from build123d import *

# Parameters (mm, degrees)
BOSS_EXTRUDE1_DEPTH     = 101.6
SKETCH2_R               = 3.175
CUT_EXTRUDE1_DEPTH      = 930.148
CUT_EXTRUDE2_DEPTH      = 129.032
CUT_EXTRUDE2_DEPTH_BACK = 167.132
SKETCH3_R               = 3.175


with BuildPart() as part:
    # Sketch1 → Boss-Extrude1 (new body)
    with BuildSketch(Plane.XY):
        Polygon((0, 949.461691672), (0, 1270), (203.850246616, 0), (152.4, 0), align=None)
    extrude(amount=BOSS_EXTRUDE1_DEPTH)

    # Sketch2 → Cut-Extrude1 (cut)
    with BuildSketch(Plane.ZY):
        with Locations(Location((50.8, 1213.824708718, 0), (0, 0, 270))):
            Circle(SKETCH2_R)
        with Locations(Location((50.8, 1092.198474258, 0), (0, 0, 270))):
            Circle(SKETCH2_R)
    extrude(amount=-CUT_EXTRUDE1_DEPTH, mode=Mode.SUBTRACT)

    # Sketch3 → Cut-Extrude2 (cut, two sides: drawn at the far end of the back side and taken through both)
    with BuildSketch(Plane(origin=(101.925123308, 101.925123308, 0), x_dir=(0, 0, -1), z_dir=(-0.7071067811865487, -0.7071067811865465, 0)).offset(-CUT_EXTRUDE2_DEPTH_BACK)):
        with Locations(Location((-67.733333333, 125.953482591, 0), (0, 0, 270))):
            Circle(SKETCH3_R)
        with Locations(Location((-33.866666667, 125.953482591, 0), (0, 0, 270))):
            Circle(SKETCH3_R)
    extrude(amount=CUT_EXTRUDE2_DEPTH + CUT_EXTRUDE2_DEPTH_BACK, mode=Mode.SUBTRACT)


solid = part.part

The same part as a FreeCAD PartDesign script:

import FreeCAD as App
import Part
import Sketcher
from FreeCAD import Vector
Q = App.Units.Quantity


def add_polygon(sketch, points):
    """Adds a closed chain of lines whose ends are joined by coincident constraints."""
    first, n = sketch.GeometryCount, len(points)
    for a, b in zip(points, points[1:] + points[:1]):
        sketch.addGeometry(Part.LineSegment(App.Vector(*a, 0), App.Vector(*b, 0)), False)
    for i in range(n):
        sketch.addConstraint(Sketcher.Constraint("Coincident", first + i, 2, first + (i + 1) % n, 1))

doc = App.newDocument("Part")
body = doc.addObject("PartDesign::Body", "Body")

# Sketch on XY plane
sketch1 = body.newObject("Sketcher::SketchObject", "Sketch")
sketch1.AttachmentSupport = (doc.getObject("XY_Plane"), [""])
sketch1.MapMode = "FlatFace"
add_polygon(sketch1, [(0, 1270), (0, 949), (152, 0), (204, 0)])  # lines 0-3
sketch1.addConstraint([
    Sketcher.Constraint("Vertical", 0),
    Sketcher.Constraint("Horizontal", 2),
    Sketcher.Constraint("PointOnObject", 0, 2, -2),
    Sketcher.Constraint("PointOnObject", 1, 2, -1),
    Sketcher.Constraint("Parallel", 1, 3),
    Sketcher.Constraint("DistanceX", -1, 1, 1, 2, Q("6 in")),
    Sketcher.Constraint("DistanceY", -1, 1, 3, 2, Q("50 in")),
    Sketcher.Constraint("DistanceY", 0, 2, 0, 1, Q("320.538308 mm")),
])
pad1 = body.newObject("PartDesign::Pad", "Pad")
pad1.Profile = sketch1
pad1.Length = Q("4 in")

# Sketch on YZ plane
sketch2 = body.newObject("Sketcher::SketchObject", "Sketch001")
sketch2.AttachmentSupport = (doc.getObject("YZ_Plane"), [""])
sketch2.MapMode = "FlatFace"
sketch2.addGeometry([
    Part.Circle(Vector(1213.8, 50.8, 0), Vector(0, 0, 1), 3.2),
    Part.Circle(Vector(1092.2, 50.8, 0), Vector(0, 0, 1), 3.2),
], False)
sketch2.addConstraint([
    Sketcher.Constraint("Equal", 0, 1),
    Sketcher.Constraint("Horizontal", 0, 3, 1, 3),
    Sketcher.Constraint("Diameter", 0, Q("0.25 in")),
    Sketcher.Constraint("DistanceY", -1, 1, 0, 3, Q("2 in")),
    Sketcher.Constraint("DistanceX", -1, 1, 0, 3, Q("1213.824709 mm")),
    Sketcher.Constraint("DistanceX", -1, 1, 1, 3, Q("1092.198474 mm")),
])
pocket1 = body.newObject("PartDesign::Pocket", "Pocket")
pocket1.Profile = sketch2
pocket1.Length = Q("36.62 in")
pocket1.Reversed = True

# Sketch on an angled plane
sketch3 = body.newObject("Sketcher::SketchObject", "Sketch002")
sketch3.Placement = App.Placement(Vector(101.925123, 101.925123, 0), App.Rotation(Vector(0, 0, -1), Vector(0.707106781, -0.707106781, 0), Vector(-0.707106781, -0.707106781, 0), "ZXY"))
sketch3.addGeometry([
    Part.Circle(Vector(-67.7, 126, 0), Vector(0, 0, 1), 3.2),
    Part.Circle(Vector(-33.9, 126, 0), Vector(0, 0, 1), 3.2),
], False)
sketch3.addConstraint([
    Sketcher.Constraint("Equal", 0, 1),
    Sketcher.Constraint("Horizontal", 0, 3, 1, 3),
    Sketcher.Constraint("Diameter", 0, Q("0.25 in")),
    Sketcher.Constraint("DistanceX", 0, 3, -1, 1, Q("67.733333 mm")),
    Sketcher.Constraint("DistanceY", -1, 1, 0, 3, Q("125.953483 mm")),
    Sketcher.Constraint("DistanceX", 1, 3, -1, 1, Q("33.866667 mm")),
])
pocket2 = body.newObject("PartDesign::Pocket", "Pocket001")
pocket2.Profile = sketch3
pocket2.Type = "ThroughAll"
pocket2.Midplane = True

doc.recompute()
